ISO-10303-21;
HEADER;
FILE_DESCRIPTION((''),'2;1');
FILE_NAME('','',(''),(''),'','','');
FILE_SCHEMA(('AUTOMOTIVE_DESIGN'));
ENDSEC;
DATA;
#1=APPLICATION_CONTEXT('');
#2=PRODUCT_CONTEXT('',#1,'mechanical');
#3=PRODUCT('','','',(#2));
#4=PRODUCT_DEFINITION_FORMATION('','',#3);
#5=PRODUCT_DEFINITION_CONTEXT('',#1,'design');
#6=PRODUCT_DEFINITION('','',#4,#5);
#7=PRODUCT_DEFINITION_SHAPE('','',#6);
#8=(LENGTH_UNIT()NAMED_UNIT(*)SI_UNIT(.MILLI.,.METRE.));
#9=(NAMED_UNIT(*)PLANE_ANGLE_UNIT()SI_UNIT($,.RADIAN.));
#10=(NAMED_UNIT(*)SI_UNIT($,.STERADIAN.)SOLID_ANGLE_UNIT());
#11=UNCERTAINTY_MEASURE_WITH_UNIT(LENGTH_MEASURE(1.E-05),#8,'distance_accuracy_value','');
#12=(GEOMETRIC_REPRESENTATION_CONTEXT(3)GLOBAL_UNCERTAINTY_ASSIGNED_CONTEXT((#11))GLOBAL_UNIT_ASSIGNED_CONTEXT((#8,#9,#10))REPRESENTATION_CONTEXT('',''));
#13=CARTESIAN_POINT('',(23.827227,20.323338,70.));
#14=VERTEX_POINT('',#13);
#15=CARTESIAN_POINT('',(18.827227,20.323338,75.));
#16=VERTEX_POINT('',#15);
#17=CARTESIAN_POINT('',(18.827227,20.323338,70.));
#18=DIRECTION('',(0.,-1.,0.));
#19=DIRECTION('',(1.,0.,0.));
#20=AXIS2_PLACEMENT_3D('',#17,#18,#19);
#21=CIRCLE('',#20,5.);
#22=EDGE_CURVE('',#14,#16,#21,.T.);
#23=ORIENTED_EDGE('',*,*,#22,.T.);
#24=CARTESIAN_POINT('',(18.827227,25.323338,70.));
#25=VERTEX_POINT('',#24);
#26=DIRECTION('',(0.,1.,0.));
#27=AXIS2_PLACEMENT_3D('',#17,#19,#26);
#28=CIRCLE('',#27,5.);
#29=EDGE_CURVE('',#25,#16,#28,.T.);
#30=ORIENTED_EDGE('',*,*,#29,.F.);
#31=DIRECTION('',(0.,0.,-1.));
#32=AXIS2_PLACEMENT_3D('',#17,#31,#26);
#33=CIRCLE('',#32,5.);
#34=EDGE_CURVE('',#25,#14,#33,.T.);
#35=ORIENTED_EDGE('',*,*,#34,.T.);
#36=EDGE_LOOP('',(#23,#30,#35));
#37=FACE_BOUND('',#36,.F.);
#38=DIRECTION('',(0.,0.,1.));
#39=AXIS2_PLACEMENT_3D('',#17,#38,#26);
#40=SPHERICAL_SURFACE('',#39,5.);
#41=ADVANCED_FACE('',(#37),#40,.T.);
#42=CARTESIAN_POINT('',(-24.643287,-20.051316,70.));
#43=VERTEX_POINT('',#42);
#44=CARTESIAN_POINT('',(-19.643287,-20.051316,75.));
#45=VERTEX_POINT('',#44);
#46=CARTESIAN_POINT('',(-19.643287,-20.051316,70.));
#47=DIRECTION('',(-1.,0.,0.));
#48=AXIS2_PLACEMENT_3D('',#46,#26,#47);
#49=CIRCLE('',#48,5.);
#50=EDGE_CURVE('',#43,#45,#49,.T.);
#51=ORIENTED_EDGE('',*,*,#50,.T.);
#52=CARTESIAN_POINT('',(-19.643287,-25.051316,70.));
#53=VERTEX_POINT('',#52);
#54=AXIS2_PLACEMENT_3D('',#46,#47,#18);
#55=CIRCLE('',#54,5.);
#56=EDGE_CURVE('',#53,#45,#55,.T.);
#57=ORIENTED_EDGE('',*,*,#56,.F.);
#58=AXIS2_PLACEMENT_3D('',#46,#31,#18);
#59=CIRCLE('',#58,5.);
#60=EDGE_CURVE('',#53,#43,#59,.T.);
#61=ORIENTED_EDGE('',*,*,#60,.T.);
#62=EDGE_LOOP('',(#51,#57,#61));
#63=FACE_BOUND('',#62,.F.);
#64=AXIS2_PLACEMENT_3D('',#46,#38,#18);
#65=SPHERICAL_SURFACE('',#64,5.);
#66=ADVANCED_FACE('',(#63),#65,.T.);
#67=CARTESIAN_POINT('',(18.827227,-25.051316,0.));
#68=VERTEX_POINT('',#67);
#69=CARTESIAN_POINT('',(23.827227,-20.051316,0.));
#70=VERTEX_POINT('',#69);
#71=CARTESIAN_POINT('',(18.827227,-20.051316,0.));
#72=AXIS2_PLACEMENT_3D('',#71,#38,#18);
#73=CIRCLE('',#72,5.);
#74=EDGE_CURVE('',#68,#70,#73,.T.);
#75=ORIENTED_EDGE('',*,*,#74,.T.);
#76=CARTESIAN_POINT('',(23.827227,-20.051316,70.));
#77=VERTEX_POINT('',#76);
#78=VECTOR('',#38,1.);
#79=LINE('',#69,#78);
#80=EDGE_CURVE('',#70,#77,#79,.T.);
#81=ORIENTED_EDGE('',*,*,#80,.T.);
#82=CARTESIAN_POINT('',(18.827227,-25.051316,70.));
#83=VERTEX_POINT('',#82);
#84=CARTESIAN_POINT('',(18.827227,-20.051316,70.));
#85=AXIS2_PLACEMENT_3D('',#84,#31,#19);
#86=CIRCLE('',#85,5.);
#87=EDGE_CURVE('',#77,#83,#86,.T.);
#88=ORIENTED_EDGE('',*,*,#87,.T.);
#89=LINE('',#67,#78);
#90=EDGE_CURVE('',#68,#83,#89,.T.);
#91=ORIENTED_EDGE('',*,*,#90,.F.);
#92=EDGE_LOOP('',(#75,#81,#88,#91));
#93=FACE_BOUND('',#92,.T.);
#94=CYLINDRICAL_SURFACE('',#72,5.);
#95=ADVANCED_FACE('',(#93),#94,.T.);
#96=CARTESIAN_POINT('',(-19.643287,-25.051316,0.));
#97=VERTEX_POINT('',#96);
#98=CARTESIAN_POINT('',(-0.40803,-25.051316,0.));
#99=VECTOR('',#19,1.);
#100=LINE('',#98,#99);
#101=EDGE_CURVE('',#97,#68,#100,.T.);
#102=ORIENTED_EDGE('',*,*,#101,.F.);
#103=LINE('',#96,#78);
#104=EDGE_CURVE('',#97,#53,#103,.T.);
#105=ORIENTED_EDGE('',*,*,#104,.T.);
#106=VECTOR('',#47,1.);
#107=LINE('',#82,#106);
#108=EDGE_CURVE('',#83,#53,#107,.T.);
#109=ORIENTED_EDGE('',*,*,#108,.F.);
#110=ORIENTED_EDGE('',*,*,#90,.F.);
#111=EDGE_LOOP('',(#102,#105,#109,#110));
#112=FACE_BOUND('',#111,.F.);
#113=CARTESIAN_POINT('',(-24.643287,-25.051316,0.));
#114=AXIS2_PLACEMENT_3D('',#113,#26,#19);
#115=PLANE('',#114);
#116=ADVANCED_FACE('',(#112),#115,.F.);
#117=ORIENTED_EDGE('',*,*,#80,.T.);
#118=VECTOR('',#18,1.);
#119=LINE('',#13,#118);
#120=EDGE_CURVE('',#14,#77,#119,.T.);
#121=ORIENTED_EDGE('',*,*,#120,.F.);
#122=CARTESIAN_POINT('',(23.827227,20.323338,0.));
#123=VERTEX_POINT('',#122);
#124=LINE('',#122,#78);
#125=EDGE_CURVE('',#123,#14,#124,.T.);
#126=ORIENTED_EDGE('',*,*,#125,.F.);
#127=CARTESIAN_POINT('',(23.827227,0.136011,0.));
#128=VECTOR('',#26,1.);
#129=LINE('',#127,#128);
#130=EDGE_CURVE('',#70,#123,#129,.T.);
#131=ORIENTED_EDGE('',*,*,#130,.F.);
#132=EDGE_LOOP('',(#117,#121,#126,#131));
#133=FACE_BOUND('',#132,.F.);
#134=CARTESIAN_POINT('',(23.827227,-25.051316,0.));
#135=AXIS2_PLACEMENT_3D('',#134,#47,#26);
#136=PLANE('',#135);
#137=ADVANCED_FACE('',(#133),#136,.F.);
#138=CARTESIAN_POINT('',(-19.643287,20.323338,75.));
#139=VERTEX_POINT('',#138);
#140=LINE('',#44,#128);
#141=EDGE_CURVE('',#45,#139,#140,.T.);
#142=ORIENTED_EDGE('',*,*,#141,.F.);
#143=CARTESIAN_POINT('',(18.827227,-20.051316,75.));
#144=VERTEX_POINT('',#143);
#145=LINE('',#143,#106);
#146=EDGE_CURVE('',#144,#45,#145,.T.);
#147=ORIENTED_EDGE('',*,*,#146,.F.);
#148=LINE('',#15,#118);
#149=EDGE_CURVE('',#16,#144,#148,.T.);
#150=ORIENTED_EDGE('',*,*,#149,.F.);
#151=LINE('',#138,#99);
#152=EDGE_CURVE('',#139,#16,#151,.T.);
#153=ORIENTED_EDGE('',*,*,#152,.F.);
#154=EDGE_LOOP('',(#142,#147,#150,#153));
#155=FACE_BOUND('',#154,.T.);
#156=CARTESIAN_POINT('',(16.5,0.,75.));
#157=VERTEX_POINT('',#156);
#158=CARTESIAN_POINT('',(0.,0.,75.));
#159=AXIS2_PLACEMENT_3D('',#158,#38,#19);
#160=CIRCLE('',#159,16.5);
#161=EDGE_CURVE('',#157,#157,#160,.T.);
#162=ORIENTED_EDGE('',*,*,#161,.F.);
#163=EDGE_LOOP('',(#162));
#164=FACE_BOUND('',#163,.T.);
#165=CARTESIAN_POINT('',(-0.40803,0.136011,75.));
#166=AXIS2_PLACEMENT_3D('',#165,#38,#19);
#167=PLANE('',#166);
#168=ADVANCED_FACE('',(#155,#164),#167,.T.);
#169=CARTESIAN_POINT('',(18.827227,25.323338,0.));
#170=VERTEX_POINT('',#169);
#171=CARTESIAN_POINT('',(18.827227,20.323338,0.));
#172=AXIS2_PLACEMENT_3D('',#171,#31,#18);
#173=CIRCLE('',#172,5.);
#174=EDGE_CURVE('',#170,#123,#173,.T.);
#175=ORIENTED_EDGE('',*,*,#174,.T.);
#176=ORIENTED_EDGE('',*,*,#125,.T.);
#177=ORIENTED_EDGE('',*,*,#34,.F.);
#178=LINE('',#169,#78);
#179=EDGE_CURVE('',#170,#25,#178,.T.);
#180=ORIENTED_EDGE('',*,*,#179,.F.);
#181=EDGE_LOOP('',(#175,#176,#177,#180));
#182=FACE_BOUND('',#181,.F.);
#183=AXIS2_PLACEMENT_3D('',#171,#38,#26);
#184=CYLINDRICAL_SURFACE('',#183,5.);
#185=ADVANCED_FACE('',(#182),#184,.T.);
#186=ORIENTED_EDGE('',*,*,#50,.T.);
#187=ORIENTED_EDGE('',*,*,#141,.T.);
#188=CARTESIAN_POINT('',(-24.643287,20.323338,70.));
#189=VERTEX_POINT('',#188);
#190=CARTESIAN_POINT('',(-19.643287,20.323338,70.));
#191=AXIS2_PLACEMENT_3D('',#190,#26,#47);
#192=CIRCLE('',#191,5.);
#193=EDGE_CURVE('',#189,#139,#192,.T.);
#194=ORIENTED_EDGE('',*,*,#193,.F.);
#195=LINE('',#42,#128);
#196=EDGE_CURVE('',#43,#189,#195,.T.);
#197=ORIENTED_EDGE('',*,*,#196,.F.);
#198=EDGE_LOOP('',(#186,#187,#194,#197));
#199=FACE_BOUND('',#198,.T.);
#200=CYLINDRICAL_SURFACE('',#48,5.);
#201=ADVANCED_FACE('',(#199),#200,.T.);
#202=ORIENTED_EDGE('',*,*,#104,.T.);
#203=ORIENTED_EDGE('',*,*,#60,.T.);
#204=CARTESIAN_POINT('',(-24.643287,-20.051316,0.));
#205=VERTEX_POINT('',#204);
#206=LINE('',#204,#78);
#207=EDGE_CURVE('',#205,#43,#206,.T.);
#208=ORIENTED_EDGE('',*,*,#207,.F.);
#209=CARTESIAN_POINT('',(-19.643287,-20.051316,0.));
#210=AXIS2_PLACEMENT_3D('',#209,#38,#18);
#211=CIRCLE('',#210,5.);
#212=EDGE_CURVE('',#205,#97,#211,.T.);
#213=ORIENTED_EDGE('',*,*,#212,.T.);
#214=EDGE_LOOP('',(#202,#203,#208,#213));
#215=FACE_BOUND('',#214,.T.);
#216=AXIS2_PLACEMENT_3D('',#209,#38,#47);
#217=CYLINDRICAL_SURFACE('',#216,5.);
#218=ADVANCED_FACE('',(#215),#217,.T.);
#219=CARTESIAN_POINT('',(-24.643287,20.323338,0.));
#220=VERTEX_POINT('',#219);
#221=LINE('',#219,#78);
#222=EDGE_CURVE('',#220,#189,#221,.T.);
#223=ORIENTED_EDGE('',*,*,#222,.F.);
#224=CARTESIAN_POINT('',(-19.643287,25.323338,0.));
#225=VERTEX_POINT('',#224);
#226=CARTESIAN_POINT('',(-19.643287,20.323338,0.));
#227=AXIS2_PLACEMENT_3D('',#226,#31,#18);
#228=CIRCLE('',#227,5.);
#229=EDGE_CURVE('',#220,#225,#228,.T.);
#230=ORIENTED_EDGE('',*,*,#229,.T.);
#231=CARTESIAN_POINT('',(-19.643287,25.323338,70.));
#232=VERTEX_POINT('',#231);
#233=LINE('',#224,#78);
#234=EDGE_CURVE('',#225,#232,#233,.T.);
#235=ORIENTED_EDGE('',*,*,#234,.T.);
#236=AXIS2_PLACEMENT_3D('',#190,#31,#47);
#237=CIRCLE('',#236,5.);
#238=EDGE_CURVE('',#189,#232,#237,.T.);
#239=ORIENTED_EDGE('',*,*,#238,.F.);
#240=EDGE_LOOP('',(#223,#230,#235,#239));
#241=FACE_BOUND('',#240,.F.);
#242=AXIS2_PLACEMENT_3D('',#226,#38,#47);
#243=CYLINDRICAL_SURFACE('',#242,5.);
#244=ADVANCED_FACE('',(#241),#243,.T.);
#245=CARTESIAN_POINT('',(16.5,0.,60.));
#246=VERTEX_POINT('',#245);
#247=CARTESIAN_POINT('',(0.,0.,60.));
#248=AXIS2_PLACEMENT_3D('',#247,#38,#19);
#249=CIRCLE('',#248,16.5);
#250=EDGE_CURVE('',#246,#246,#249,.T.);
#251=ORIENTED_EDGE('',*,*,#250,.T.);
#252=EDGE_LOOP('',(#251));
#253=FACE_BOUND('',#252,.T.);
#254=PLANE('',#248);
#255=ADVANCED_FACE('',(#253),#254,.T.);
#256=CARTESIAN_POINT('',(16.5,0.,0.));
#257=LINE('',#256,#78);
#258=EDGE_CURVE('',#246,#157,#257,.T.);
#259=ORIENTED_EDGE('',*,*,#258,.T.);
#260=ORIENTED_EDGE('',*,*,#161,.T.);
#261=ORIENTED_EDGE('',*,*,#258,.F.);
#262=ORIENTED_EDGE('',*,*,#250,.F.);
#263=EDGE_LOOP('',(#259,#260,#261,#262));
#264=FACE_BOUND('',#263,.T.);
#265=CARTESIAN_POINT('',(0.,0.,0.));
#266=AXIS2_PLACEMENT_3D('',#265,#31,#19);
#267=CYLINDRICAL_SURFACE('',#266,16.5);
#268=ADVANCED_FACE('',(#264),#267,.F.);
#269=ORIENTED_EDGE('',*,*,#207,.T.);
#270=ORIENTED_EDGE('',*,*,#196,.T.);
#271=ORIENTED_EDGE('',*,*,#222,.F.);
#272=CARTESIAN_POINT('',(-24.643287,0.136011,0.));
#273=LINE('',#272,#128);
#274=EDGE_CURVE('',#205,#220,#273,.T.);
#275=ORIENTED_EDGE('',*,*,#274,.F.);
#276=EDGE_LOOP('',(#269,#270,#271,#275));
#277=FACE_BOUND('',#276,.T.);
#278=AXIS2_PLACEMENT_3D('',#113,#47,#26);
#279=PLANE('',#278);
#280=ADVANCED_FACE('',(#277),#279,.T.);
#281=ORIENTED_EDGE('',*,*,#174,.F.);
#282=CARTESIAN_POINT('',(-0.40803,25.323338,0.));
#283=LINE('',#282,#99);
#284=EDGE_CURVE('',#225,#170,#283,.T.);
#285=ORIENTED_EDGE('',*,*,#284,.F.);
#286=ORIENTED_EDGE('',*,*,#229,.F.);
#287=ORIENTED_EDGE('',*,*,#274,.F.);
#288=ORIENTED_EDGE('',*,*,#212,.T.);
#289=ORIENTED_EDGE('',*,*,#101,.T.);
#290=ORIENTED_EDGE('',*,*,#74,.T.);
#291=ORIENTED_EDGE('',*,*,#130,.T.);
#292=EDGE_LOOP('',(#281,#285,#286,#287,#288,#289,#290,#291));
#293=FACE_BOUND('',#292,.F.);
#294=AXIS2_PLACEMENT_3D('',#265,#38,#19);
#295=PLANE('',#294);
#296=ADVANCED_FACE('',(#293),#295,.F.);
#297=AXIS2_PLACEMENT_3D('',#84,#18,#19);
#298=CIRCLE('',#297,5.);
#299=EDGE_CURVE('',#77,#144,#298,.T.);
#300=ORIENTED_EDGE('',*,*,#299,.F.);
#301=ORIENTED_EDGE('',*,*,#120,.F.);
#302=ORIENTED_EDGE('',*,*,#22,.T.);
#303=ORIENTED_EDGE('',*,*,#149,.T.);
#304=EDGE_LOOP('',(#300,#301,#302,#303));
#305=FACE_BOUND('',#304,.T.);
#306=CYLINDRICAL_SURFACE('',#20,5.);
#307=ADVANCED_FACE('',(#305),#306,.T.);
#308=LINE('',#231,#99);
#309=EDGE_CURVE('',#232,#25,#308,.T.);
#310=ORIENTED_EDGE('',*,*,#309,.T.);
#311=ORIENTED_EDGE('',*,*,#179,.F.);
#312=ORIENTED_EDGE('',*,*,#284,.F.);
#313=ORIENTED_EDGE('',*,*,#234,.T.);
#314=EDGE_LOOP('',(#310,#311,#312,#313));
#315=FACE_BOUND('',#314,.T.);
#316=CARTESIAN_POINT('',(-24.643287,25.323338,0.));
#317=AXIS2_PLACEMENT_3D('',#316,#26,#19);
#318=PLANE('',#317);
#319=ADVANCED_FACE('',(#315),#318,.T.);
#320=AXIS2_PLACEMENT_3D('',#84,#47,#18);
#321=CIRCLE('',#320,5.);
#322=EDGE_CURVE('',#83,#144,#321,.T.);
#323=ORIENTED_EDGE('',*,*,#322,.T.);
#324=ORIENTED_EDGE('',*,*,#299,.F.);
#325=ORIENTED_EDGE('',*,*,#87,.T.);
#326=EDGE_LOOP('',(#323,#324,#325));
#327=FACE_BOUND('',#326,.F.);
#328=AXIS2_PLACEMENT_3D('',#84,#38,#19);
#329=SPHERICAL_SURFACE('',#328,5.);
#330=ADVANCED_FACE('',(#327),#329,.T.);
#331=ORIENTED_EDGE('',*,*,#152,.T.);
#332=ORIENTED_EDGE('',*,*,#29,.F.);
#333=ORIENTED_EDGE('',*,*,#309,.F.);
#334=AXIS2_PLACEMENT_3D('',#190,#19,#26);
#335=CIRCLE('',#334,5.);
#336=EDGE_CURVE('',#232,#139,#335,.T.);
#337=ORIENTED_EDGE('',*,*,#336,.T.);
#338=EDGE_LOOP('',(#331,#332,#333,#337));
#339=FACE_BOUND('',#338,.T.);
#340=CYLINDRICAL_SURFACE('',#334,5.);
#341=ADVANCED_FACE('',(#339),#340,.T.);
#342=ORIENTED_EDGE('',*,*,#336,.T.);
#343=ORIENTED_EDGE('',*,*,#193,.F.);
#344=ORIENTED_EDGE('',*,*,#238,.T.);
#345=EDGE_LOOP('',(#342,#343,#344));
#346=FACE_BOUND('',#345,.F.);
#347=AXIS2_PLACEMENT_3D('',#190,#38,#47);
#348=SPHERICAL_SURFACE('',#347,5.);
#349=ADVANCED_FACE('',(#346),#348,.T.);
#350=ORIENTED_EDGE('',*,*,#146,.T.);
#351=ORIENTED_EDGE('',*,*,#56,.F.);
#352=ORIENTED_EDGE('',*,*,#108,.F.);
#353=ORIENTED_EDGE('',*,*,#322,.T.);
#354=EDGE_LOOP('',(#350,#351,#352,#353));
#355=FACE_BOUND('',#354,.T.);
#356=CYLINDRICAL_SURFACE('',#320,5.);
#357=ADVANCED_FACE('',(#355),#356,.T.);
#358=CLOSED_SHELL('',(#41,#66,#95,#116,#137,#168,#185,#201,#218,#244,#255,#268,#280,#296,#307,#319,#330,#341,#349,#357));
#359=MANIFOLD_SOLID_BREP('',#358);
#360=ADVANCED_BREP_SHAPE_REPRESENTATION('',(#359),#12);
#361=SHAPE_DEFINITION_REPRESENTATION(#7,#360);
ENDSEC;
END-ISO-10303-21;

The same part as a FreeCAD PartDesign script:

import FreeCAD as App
import Part
import Sketcher

V = App.Vector


def edges_at(feature, points):
    """Names of the edges that pass closest to the given points."""
    edges = feature.Shape.Edges
    near = lambda p: min(range(len(edges)), key=lambda i: edges[i].distToShape(Part.Vertex(*p))[0])
    return sorted({f"Edge{near(p) + 1}" for p in points})


def add_polygon(sketch, points):
    """Adds a closed chain of lines whose ends are joined by coincident constraints."""
    first, n = sketch.GeometryCount, len(points)
    for a, b in zip(points, points[1:] + points[:1]):
        sketch.addGeometry(Part.LineSegment(App.Vector(*a, 0), App.Vector(*b, 0)), False)
    for i in range(n):
        sketch.addConstraint(Sketcher.Constraint("Coincident", first + i, 2, first + (i + 1) % n, 1))

doc = App.newDocument("Part")
body = doc.addObject("PartDesign::Body", "Body")

# Sketch on XY plane
sketch1 = doc.addObject("Sketcher::SketchObject", "Sketch")
body.addObject(sketch1)
sketch1.AttachmentSupport = (doc.XY_Plane, [""])
sketch1.MapMode = "FlatFace"
add_polygon(sketch1, [(-25, 25), (-25, -25), (24, -25), (24, 25)])  # lines 0-3
sketch1.addGeometry(Part.Circle(V(0, 0, 0), V(0, 0, 1), 16), False)  # 4
sketch1.addConstraint(Sketcher.Constraint("Vertical", 0))
sketch1.addConstraint(Sketcher.Constraint("Horizontal", 1))
sketch1.addConstraint(Sketcher.Constraint("Vertical", 2))
sketch1.addConstraint(Sketcher.Constraint("Horizontal", 3))
sketch1.addConstraint(Sketcher.Constraint("Coincident", 4, 3, -1, 1))
sketch1.addConstraint(Sketcher.Constraint("Diameter", 4, 33.0))
sketch1.addConstraint(Sketcher.Constraint("DistanceX", 1, 1, 1, 2, 48.470514))
sketch1.addConstraint(Sketcher.Constraint("DistanceY", 0, 2, 0, 1, 50.374654))
sketch1.addConstraint(Sketcher.Constraint("DistanceX", 0, 2, -1, 1, 24.643287))
sketch1.addConstraint(Sketcher.Constraint("DistanceY", 0, 2, -1, 1, 25.051316))
pad1 = doc.addObject("PartDesign::Pad", "Pad")
body.addObject(pad1)
pad1.Profile = sketch1
pad1.Length = 75

# Sketch on XY plane
sketch2 = doc.addObject("Sketcher::SketchObject", "Sketch001")
body.addObject(sketch2)
sketch2.AttachmentSupport = (doc.XY_Plane, [""])
sketch2.MapMode = "FlatFace"
sketch2.addGeometry(Part.Circle(V(0, 0, 0), V(0, 0, 1), 16), False)
sketch2.addConstraint(Sketcher.Constraint("Coincident", 0, 3, -1, 1))
sketch2.addConstraint(Sketcher.Constraint("Diameter", 0, 33.0))
pad2 = doc.addObject("PartDesign::Pad", "Pad001")
body.addObject(pad2)
pad2.Profile = sketch2
pad2.Length = 60
doc.recompute()

fillet = doc.addObject("PartDesign::Fillet", "Fillet")
body.addObject(fillet)
fillet.Base = (pad2, edges_at(pad2, [
    (23.827, 25.323, 37.5),
    (-24.643, 25.323, 37.5),
    (23.827, -25.051, 37.5),
    (-24.643, -25.051, 37.5),
]))
fillet.Radius = 5
doc.recompute()

fillet2 = doc.addObject("PartDesign::Fillet", "Fillet001")
body.addObject(fillet2)
fillet2.Base = (fillet, edges_at(fillet, [
    (-0.408, 25.323, 75),
    (23.827, 0.136, 75),
    (-0.408, -25.051, 75),
    (-24.643, 0.136, 75),
]))
fillet2.Radius = 5

doc.recompute()
